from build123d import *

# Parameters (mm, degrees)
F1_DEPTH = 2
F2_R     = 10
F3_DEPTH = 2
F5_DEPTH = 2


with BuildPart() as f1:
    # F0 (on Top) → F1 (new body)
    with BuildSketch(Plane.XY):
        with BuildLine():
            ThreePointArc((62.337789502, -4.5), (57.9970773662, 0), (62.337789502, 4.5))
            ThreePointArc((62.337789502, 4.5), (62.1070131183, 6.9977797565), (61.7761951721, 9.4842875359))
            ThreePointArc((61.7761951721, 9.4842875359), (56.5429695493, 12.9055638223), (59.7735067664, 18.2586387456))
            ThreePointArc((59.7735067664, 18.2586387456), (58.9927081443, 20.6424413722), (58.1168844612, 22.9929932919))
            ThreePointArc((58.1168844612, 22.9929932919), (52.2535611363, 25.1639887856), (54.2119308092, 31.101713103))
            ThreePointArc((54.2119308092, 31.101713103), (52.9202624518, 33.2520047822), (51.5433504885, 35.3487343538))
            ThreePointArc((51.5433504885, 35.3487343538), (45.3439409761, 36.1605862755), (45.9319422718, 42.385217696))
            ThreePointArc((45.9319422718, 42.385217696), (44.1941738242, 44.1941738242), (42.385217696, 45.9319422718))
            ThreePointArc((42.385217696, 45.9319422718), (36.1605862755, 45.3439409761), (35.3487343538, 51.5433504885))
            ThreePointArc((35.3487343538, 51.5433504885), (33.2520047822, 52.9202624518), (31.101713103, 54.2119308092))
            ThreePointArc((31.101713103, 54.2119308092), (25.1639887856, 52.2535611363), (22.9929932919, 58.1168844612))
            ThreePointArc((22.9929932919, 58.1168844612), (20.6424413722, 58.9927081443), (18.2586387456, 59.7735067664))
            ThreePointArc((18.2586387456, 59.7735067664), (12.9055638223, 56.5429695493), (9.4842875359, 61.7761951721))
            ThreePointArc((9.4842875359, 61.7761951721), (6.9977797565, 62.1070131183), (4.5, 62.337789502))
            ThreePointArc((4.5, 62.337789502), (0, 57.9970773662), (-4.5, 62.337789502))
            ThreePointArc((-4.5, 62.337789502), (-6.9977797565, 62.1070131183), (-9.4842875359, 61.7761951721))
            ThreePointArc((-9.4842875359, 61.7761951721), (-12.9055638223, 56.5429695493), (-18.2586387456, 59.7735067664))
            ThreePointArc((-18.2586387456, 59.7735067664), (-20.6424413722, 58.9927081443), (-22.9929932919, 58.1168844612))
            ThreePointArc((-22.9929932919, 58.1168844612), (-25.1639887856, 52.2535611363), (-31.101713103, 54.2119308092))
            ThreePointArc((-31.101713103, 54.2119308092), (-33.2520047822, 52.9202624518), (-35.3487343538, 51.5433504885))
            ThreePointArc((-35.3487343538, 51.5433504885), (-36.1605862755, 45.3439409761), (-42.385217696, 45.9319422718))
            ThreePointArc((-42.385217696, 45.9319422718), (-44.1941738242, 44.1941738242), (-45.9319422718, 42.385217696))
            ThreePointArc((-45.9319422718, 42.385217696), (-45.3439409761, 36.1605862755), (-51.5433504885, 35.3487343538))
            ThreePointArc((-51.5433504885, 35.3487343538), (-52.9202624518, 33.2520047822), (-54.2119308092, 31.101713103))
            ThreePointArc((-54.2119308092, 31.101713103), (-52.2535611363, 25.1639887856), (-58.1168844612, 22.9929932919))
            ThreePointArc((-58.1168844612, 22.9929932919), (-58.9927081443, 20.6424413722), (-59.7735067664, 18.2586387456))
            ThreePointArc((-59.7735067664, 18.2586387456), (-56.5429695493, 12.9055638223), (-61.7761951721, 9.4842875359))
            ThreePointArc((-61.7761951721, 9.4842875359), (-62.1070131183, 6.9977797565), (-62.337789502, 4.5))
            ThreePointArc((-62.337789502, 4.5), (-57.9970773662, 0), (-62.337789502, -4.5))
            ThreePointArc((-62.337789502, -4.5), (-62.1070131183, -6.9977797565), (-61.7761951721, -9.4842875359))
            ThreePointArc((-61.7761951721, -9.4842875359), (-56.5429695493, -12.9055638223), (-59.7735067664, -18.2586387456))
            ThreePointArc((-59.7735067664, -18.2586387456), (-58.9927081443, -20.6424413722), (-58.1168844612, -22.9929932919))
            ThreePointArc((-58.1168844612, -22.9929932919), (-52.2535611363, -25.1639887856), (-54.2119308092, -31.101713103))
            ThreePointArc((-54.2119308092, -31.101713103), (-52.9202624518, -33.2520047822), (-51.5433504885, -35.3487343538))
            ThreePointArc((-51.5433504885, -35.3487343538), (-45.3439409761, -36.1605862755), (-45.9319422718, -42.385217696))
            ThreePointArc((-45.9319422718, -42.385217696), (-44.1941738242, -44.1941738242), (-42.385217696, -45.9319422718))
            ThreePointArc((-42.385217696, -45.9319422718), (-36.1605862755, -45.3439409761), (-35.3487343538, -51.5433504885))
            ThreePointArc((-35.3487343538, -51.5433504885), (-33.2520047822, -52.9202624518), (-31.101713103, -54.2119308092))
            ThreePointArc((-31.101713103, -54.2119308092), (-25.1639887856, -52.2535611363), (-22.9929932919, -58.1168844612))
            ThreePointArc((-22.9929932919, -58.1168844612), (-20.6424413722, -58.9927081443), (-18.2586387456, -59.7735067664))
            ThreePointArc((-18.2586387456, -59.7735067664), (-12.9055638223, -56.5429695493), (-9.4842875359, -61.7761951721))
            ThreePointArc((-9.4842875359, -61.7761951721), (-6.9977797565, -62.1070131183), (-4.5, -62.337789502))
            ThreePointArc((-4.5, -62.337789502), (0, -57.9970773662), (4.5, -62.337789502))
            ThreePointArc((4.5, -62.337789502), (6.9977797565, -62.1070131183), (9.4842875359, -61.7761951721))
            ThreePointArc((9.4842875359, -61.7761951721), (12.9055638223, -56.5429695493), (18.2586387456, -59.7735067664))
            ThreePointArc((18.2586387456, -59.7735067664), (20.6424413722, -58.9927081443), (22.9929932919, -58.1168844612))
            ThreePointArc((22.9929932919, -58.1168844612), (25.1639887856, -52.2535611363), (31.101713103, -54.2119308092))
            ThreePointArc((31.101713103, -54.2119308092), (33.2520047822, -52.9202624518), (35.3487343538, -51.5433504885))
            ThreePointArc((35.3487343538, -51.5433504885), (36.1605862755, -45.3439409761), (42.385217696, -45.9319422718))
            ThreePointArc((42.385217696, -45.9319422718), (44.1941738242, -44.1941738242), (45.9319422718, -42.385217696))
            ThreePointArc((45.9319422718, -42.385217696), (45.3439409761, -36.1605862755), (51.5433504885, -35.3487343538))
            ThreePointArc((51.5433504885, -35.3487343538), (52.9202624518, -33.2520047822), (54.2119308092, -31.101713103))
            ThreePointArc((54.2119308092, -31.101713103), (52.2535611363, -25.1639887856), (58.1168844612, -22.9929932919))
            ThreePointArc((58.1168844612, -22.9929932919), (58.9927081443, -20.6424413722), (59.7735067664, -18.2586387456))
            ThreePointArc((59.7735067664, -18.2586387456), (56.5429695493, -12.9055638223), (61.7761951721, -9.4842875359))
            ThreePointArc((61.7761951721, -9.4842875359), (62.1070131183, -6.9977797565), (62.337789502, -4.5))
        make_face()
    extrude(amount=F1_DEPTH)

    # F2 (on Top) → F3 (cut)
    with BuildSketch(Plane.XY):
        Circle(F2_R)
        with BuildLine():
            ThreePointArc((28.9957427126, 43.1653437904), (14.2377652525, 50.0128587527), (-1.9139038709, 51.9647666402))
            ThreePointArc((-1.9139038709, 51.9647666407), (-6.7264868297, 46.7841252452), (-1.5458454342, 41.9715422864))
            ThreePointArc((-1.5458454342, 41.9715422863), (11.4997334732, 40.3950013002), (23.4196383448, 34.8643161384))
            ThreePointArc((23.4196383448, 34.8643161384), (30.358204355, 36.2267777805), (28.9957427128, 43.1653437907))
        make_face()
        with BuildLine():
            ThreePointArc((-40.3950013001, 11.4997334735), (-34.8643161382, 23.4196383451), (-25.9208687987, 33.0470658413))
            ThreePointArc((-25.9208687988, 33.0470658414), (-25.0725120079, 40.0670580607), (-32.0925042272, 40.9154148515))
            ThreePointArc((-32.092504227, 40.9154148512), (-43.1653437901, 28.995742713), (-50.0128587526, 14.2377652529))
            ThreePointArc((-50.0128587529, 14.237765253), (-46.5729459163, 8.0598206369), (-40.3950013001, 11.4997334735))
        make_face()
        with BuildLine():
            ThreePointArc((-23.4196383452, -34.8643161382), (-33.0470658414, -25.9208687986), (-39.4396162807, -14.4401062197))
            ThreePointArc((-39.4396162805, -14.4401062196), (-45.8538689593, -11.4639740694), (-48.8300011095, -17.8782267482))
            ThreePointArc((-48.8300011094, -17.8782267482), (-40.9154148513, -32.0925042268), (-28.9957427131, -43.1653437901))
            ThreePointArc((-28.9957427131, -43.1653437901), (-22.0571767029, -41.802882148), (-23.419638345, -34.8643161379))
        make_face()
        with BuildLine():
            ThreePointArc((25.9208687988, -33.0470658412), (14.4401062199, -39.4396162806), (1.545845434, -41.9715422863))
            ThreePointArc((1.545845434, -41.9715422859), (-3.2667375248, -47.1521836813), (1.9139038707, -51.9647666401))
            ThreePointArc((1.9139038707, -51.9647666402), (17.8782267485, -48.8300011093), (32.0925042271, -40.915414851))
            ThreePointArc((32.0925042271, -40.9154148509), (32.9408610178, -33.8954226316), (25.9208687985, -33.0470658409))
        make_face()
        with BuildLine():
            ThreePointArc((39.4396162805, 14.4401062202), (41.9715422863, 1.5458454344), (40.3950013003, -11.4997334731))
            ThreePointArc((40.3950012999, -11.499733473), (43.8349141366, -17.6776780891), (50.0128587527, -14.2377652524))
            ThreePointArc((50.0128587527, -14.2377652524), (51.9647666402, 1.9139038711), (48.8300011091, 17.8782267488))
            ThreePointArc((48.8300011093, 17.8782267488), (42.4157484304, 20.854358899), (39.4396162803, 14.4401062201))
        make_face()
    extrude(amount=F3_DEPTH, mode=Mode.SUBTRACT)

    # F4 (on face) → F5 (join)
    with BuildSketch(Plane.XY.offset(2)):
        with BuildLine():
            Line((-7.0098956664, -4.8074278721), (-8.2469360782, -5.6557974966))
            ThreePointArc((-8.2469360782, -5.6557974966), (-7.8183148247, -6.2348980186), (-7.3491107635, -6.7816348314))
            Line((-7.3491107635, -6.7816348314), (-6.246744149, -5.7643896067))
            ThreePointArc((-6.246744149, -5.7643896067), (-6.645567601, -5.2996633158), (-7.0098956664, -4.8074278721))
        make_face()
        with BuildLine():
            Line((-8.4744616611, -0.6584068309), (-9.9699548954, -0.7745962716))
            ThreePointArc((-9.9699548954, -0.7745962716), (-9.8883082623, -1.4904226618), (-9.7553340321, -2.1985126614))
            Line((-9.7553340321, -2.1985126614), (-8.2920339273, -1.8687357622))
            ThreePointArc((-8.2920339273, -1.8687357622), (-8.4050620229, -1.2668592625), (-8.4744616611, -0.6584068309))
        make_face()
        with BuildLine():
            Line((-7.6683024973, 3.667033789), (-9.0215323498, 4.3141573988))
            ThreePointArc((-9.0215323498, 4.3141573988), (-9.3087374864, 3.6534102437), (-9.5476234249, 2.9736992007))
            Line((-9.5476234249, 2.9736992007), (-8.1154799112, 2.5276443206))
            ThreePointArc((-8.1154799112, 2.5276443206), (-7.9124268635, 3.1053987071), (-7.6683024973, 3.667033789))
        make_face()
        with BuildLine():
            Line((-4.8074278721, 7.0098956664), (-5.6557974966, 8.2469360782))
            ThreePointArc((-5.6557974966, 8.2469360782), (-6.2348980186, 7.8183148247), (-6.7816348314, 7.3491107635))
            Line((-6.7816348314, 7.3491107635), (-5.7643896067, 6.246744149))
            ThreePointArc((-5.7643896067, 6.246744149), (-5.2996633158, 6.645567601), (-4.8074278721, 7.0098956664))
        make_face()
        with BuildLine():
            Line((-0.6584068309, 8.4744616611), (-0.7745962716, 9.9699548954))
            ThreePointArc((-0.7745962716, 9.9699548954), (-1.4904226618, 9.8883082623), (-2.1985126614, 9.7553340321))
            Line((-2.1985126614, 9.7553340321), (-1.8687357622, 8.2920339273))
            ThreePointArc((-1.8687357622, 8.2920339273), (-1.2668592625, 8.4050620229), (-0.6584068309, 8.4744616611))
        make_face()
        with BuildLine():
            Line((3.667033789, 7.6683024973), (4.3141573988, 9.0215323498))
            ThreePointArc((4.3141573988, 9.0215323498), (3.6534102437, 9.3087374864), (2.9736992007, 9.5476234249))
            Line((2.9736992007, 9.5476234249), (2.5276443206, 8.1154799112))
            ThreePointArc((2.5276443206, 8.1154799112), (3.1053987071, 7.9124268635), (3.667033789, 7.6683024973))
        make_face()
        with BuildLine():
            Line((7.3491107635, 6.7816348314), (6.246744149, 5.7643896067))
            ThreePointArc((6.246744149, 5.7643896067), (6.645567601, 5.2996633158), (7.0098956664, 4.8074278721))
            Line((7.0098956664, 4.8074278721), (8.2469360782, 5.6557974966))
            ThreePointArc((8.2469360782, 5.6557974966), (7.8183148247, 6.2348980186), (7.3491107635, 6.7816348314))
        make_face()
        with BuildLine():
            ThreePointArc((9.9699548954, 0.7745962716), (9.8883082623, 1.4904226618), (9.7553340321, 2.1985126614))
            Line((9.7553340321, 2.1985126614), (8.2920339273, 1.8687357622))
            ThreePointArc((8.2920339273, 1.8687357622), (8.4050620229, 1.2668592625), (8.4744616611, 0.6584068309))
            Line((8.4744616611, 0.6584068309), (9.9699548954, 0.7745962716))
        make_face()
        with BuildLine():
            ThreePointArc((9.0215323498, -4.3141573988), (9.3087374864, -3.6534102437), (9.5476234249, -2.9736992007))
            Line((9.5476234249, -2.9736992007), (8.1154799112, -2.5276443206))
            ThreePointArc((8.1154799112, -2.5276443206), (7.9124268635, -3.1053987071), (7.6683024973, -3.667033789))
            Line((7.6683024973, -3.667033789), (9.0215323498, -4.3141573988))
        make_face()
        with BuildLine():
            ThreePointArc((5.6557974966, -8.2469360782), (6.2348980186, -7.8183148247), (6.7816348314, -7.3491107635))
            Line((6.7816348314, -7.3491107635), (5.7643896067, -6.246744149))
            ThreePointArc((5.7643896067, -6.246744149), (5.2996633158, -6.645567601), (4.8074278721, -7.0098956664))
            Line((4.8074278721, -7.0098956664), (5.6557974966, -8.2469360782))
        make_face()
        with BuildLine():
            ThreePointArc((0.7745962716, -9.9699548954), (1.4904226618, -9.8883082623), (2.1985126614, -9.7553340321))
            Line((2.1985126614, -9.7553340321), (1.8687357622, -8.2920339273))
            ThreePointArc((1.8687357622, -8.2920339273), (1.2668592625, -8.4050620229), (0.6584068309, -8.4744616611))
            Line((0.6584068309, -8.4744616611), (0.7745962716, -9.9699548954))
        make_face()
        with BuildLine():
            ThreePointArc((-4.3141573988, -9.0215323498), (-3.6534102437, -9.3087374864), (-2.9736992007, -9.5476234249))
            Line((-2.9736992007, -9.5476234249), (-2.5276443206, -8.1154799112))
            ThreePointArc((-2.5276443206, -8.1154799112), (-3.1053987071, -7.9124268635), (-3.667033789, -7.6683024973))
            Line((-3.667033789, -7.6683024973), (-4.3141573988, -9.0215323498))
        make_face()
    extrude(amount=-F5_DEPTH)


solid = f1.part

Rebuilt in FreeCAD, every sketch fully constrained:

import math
import FreeCAD as App
import Part
import Sketcher

V = App.Vector
Q = App.Units.Quantity

doc = App.newDocument("Part")
body = doc.addObject("PartDesign::Body", "Body")

# Sketch on XY plane
sketch1 = doc.addObject("Sketcher::SketchObject", "Sketch")
body.addObject(sketch1)
sketch1.AttachmentSupport = (doc.XY_Plane, [""])
sketch1.MapMode = "FlatFace"
sketch1.addGeometry([
    Part.ArcOfCircle(Part.Circle(V(62.5, 0, 0), V(0, 0, 1), 4.5), math.radians(92), math.radians(268)),  # 0
    Part.ArcOfCircle(Part.Circle(V(0, 0, 0), V(0, 0, 1), 62.5), math.radians(4.13), math.radians(8.73)),  # 1
    Part.ArcOfCircle(Part.Circle(V(60.9, 13.9, 0), V(0, 0, 1), 4.5), math.radians(105), math.radians(281)),  # 2
    Part.ArcOfCircle(Part.Circle(V(0, 0, 0), V(0, 0, 1), 62.5), math.radians(16.99), math.radians(21.59)),  # 3
    Part.ArcOfCircle(Part.Circle(V(56.3, 27.1, 0), V(0, 0, 1), 4.5), math.radians(118), math.radians(294)),  # 4
    Part.ArcOfCircle(Part.Circle(V(0, 0, 0), V(0, 0, 1), 62.5), math.radians(29.84), math.radians(34.44)),  # 5
    Part.ArcOfCircle(Part.Circle(V(48.9, 39, 0), V(0, 0, 1), 4.5), math.radians(131), math.radians(307)),  # 6
    Part.ArcOfCircle(Part.Circle(V(0, 0, 0), V(0, 0, 1), 62.5), math.radians(42.7), math.radians(47.3)),  # 7
    Part.ArcOfCircle(Part.Circle(V(39, 48.9, 0), V(0, 0, 1), 4.5), math.radians(143), math.radians(319)),  # 8
    Part.ArcOfCircle(Part.Circle(V(0, 0, 0), V(0, 0, 1), 62.5), math.radians(55.56), math.radians(60.16)),  # 9
    Part.ArcOfCircle(Part.Circle(V(27.1, 56.3, 0), V(0, 0, 1), 4.5), math.radians(156), math.radians(332)),  # 10
    Part.ArcOfCircle(Part.Circle(V(0, 0, 0), V(0, 0, 1), 62.5), math.radians(68.41), math.radians(73.01)),  # 11
    Part.ArcOfCircle(Part.Circle(V(13.9, 60.9, 0), V(0, 0, 1), 4.5), math.radians(169), math.radians(345)),  # 12
    Part.ArcOfCircle(Part.Circle(V(0, 0, 0), V(0, 0, 1), 62.5), math.radians(81.27), math.radians(85.87)),  # 13
    Part.ArcOfCircle(Part.Circle(V(0, 62.5, 0), V(0, 0, 1), 4.5), math.radians(-178), math.radians(-2)),  # 14
    Part.ArcOfCircle(Part.Circle(V(0, 0, 0), V(0, 0, 1), 62.5), math.radians(94.13), math.radians(98.73)),  # 15
    Part.ArcOfCircle(Part.Circle(V(-13.9, 60.9, 0), V(0, 0, 1), 4.5), math.radians(-165), math.radians(11)),  # 16
    Part.ArcOfCircle(Part.Circle(V(0, 0, 0), V(0, 0, 1), 62.5), math.radians(106.99), math.radians(111.59)),  # 17
    Part.ArcOfCircle(Part.Circle(V(-27.1, 56.3, 0), V(0, 0, 1), 4.5), math.radians(-152), math.radians(24)),  # 18
    Part.ArcOfCircle(Part.Circle(V(0, 0, 0), V(0, 0, 1), 62.5), math.radians(119.84), math.radians(124.44)),  # 19
    Part.ArcOfCircle(Part.Circle(V(-39, 48.9, 0), V(0, 0, 1), 4.5), math.radians(-139), math.radians(37)),  # 20
    Part.ArcOfCircle(Part.Circle(V(0, 0, 0), V(0, 0, 1), 62.5), math.radians(132.7), math.radians(137.3)),  # 21
    Part.ArcOfCircle(Part.Circle(V(-48.9, 39, 0), V(0, 0, 1), 4.5), math.radians(-127), math.radians(49)),  # 22
    Part.ArcOfCircle(Part.Circle(V(0, 0, 0), V(0, 0, 1), 62.5), math.radians(145.56), math.radians(150.16)),  # 23
    Part.ArcOfCircle(Part.Circle(V(-56.3, 27.1, 0), V(0, 0, 1), 4.5), math.radians(-114), math.radians(62)),  # 24
    Part.ArcOfCircle(Part.Circle(V(0, 0, 0), V(0, 0, 1), 62.5), math.radians(158.41), math.radians(163.01)),  # 25
    Part.ArcOfCircle(Part.Circle(V(-60.9, 13.9, 0), V(0, 0, 1), 4.5), math.radians(-101), math.radians(75)),  # 26
    Part.ArcOfCircle(Part.Circle(V(0, 0, 0), V(0, 0, 1), 62.5), math.radians(171.27), math.radians(175.87)),  # 27
    Part.ArcOfCircle(Part.Circle(V(-62.5, 0, 0), V(0, 0, 1), 4.5), math.radians(-88), math.radians(88)),  # 28
    Part.ArcOfCircle(Part.Circle(V(0, 0, 0), V(0, 0, 1), 62.5), math.radians(-175.87), math.radians(-171.27)),  # 29
    Part.ArcOfCircle(Part.Circle(V(-60.9, -13.9, 0), V(0, 0, 1), 4.5), math.radians(-75), math.radians(101)),  # 30
    Part.ArcOfCircle(Part.Circle(V(0, 0, 0), V(0, 0, 1), 62.5), math.radians(-163.01), math.radians(-158.41)),  # 31
    Part.ArcOfCircle(Part.Circle(V(-56.3, -27.1, 0), V(0, 0, 1), 4.5), math.radians(-62), math.radians(114)),  # 32
    Part.ArcOfCircle(Part.Circle(V(0, 0, 0), V(0, 0, 1), 62.5), math.radians(-150.16), math.radians(-145.56)),  # 33
    Part.ArcOfCircle(Part.Circle(V(-48.9, -39, 0), V(0, 0, 1), 4.5), math.radians(-49), math.radians(127)),  # 34
    Part.ArcOfCircle(Part.Circle(V(0, 0, 0), V(0, 0, 1), 62.5), math.radians(-137.3), math.radians(-132.7)),  # 35
    Part.ArcOfCircle(Part.Circle(V(-39, -48.9, 0), V(0, 0, 1), 4.5), math.radians(-37), math.radians(139)),  # 36
    Part.ArcOfCircle(Part.Circle(V(0, 0, 0), V(0, 0, 1), 62.5), math.radians(-124.44), math.radians(-119.84)),  # 37
    Part.ArcOfCircle(Part.Circle(V(-27.1, -56.3, 0), V(0, 0, 1), 4.5), math.radians(-24), math.radians(152)),  # 38
    Part.ArcOfCircle(Part.Circle(V(0, 0, 0), V(0, 0, 1), 62.5), math.radians(-111.59), math.radians(-106.99)),  # 39
    Part.ArcOfCircle(Part.Circle(V(-13.9, -60.9, 0), V(0, 0, 1), 4.5), math.radians(-11), math.radians(165)),  # 40
    Part.ArcOfCircle(Part.Circle(V(0, 0, 0), V(0, 0, 1), 62.5), math.radians(-98.73), math.radians(-94.13)),  # 41
    Part.ArcOfCircle(Part.Circle(V(0, -62.5, 0), V(0, 0, 1), 4.5), math.radians(2), math.radians(178)),  # 42
    Part.ArcOfCircle(Part.Circle(V(0, 0, 0), V(0, 0, 1), 62.5), math.radians(-85.87), math.radians(-81.27)),  # 43
    Part.ArcOfCircle(Part.Circle(V(13.9, -60.9, 0), V(0, 0, 1), 4.5), math.radians(15), math.radians(191)),  # 44
    Part.ArcOfCircle(Part.Circle(V(0, 0, 0), V(0, 0, 1), 62.5), math.radians(-73.01), math.radians(-68.41)),  # 45
    Part.ArcOfCircle(Part.Circle(V(27.1, -56.3, 0), V(0, 0, 1), 4.5), math.radians(28), math.radians(204)),  # 46
    Part.ArcOfCircle(Part.Circle(V(0, 0, 0), V(0, 0, 1), 62.5), math.radians(-60.16), math.radians(-55.56)),  # 47
    Part.ArcOfCircle(Part.Circle(V(39, -48.9, 0), V(0, 0, 1), 4.5), math.radians(41), math.radians(217)),  # 48
    Part.ArcOfCircle(Part.Circle(V(0, 0, 0), V(0, 0, 1), 62.5), math.radians(-47.3), math.radians(-42.7)),  # 49
    Part.ArcOfCircle(Part.Circle(V(48.9, -39, 0), V(0, 0, 1), 4.5), math.radians(53), math.radians(229)),  # 50
    Part.ArcOfCircle(Part.Circle(V(0, 0, 0), V(0, 0, 1), 62.5), math.radians(-34.44), math.radians(-29.84)),  # 51
    Part.ArcOfCircle(Part.Circle(V(56.3, -27.1, 0), V(0, 0, 1), 4.5), math.radians(66), math.radians(242)),  # 52
    Part.ArcOfCircle(Part.Circle(V(0, 0, 0), V(0, 0, 1), 62.5), math.radians(-21.59), math.radians(-16.99)),  # 53
    Part.ArcOfCircle(Part.Circle(V(60.9, -13.9, 0), V(0, 0, 1), 4.5), math.radians(79), math.radians(255)),  # 54
    Part.ArcOfCircle(Part.Circle(V(0, 0, 0), V(0, 0, 1), 62.5), math.radians(-8.73), math.radians(-4.13)),  # 55
], False)
sketch1.addConstraint([
    Sketcher.Constraint("Coincident", 0, 1, 1, 1),
    Sketcher.Constraint("Coincident", 1, 2, 2, 2),
    Sketcher.Constraint("Coincident", 2, 1, 3, 1),
    Sketcher.Constraint("Coincident", 3, 2, 4, 2),
    Sketcher.Constraint("Coincident", 4, 1, 5, 1),
    Sketcher.Constraint("Coincident", 5, 2, 6, 2),
    Sketcher.Constraint("Coincident", 6, 1, 7, 1),
    Sketcher.Constraint("Coincident", 7, 2, 8, 2),
    Sketcher.Constraint("Coincident", 8, 1, 9, 1),
    Sketcher.Constraint("Coincident", 9, 2, 10, 2),
    Sketcher.Constraint("Coincident", 10, 1, 11, 1),
    Sketcher.Constraint("Coincident", 11, 2, 12, 2),
    Sketcher.Constraint("Coincident", 12, 1, 13, 1),
    Sketcher.Constraint("Coincident", 13, 2, 14, 2),
    Sketcher.Constraint("Coincident", 14, 1, 15, 1),
    Sketcher.Constraint("Coincident", 15, 2, 16, 2),
    Sketcher.Constraint("Coincident", 16, 1, 17, 1),
    Sketcher.Constraint("Coincident", 17, 2, 18, 2),
    Sketcher.Constraint("Coincident", 18, 1, 19, 1),
    Sketcher.Constraint("Coincident", 19, 2, 20, 2),
    Sketcher.Constraint("Coincident", 20, 1, 21, 1),
    Sketcher.Constraint("Coincident", 21, 2, 22, 2),
    Sketcher.Constraint("Coincident", 22, 1, 23, 1),
    Sketcher.Constraint("Coincident", 23, 2, 24, 2),
    Sketcher.Constraint("Coincident", 24, 1, 25, 1),
    Sketcher.Constraint("Coincident", 25, 2, 26, 2),
    Sketcher.Constraint("Coincident", 26, 1, 27, 1),
    Sketcher.Constraint("Coincident", 27, 2, 28, 2),
    Sketcher.Constraint("Coincident", 28, 1, 29, 1),
    Sketcher.Constraint("Coincident", 29, 2, 30, 2),
    Sketcher.Constraint("Coincident", 30, 1, 31, 1),
    Sketcher.Constraint("Coincident", 31, 2, 32, 2),
    Sketcher.Constraint("Coincident", 32, 1, 33, 1),
    Sketcher.Constraint("Coincident", 33, 2, 34, 2),
    Sketcher.Constraint("Coincident", 34, 1, 35, 1),
    Sketcher.Constraint("Coincident", 35, 2, 36, 2),
    Sketcher.Constraint("Coincident", 36, 1, 37, 1),
    Sketcher.Constraint("Coincident", 37, 2, 38, 2),
    Sketcher.Constraint("Coincident", 38, 1, 39, 1),
    Sketcher.Constraint("Coincident", 39, 2, 40, 2),
    Sketcher.Constraint("Coincident", 40, 1, 41, 1),
    Sketcher.Constraint("Coincident", 41, 2, 42, 2),
    Sketcher.Constraint("Coincident", 42, 1, 43, 1),
    Sketcher.Constraint("Coincident", 43, 2, 44, 2),
    Sketcher.Constraint("Coincident", 44, 1, 45, 1),
    Sketcher.Constraint("Coincident", 45, 2, 46, 2),
    Sketcher.Constraint("Coincident", 46, 1, 47, 1),
    Sketcher.Constraint("Coincident", 47, 2, 48, 2),
    Sketcher.Constraint("Coincident", 48, 1, 49, 1),
    Sketcher.Constraint("Coincident", 49, 2, 50, 2),
    Sketcher.Constraint("Coincident", 50, 1, 51, 1),
    Sketcher.Constraint("Coincident", 51, 2, 52, 2),
    Sketcher.Constraint("Coincident", 52, 1, 53, 1),
    Sketcher.Constraint("Coincident", 53, 2, 54, 2),
    Sketcher.Constraint("Coincident", 54, 1, 55, 1),
    Sketcher.Constraint("Coincident", 55, 2, 0, 2),
    Sketcher.Constraint("Coincident", 1, 3, -1, 1),
    Sketcher.Constraint("Coincident", 3, 3, -1, 1),
    Sketcher.Constraint("Coincident", 5, 3, -1, 1),
    Sketcher.Constraint("Coincident", 7, 3, -1, 1),
    Sketcher.Constraint("Coincident", 9, 3, -1, 1),
    Sketcher.Constraint("Coincident", 11, 3, -1, 1),
    Sketcher.Constraint("Coincident", 13, 3, -1, 1),
    Sketcher.Constraint("Coincident", 15, 3, -1, 1),
    Sketcher.Constraint("Coincident", 17, 3, -1, 1),
    Sketcher.Constraint("Coincident", 19, 3, -1, 1),
    Sketcher.Constraint("Coincident", 21, 3, -1, 1),
    Sketcher.Constraint("Coincident", 23, 3, -1, 1),
    Sketcher.Constraint("Coincident", 25, 3, -1, 1),
    Sketcher.Constraint("Coincident", 27, 3, -1, 1),
    Sketcher.Constraint("Coincident", 29, 3, -1, 1),
    Sketcher.Constraint("Coincident", 31, 3, -1, 1),
    Sketcher.Constraint("Coincident", 33, 3, -1, 1),
    Sketcher.Constraint("Coincident", 35, 3, -1, 1),
    Sketcher.Constraint("Coincident", 37, 3, -1, 1),
    Sketcher.Constraint("Coincident", 39, 3, -1, 1),
    Sketcher.Constraint("Coincident", 41, 3, -1, 1),
    Sketcher.Constraint("Coincident", 43, 3, -1, 1),
    Sketcher.Constraint("Coincident", 45, 3, -1, 1),
    Sketcher.Constraint("Coincident", 47, 3, -1, 1),
    Sketcher.Constraint("Coincident", 49, 3, -1, 1),
    Sketcher.Constraint("Coincident", 51, 3, -1, 1),
    Sketcher.Constraint("Coincident", 53, 3, -1, 1),
    Sketcher.Constraint("Coincident", 55, 3, -1, 1),
    Sketcher.Constraint("Equal", 0, 2),
    Sketcher.Constraint("Equal", 1, 3),
    Sketcher.Constraint("Equal", 2, 4),
    Sketcher.Constraint("Equal", 3, 5),
    Sketcher.Constraint("Equal", 4, 6),
    Sketcher.Constraint("Equal", 5, 7),
    Sketcher.Constraint("Equal", 6, 8),
    Sketcher.Constraint("Equal", 7, 9),
    Sketcher.Constraint("Equal", 8, 10),
    Sketcher.Constraint("Equal", 9, 11),
    Sketcher.Constraint("Equal", 10, 12),
    Sketcher.Constraint("Equal", 11, 13),
    Sketcher.Constraint("Equal", 12, 14),
    Sketcher.Constraint("Equal", 13, 15),
    Sketcher.Constraint("Equal", 14, 16),
    Sketcher.Constraint("Equal", 15, 17),
    Sketcher.Constraint("Equal", 16, 18),
    Sketcher.Constraint("Equal", 17, 19),
    Sketcher.Constraint("Equal", 18, 20),
    Sketcher.Constraint("Equal", 19, 21),
    Sketcher.Constraint("Equal", 20, 22),
    Sketcher.Constraint("Equal", 21, 23),
    Sketcher.Constraint("Equal", 22, 24),
    Sketcher.Constraint("Equal", 23, 25),
    Sketcher.Constraint("Equal", 24, 26),
    Sketcher.Constraint("Equal", 25, 27),
    Sketcher.Constraint("Equal", 26, 28),
    Sketcher.Constraint("Equal", 27, 29),
    Sketcher.Constraint("Equal", 28, 30),
    Sketcher.Constraint("Equal", 29, 31),
    Sketcher.Constraint("Equal", 30, 32),
    Sketcher.Constraint("Equal", 31, 33),
    Sketcher.Constraint("Equal", 32, 34),
    Sketcher.Constraint("Equal", 33, 35),
    Sketcher.Constraint("Equal", 34, 36),
    Sketcher.Constraint("Equal", 35, 37),
    Sketcher.Constraint("Equal", 36, 38),
    Sketcher.Constraint("Equal", 37, 39),
    Sketcher.Constraint("Equal", 38, 40),
    Sketcher.Constraint("Equal", 39, 41),
    Sketcher.Constraint("Equal", 40, 42),
    Sketcher.Constraint("Equal", 41, 43),
    Sketcher.Constraint("Equal", 42, 44),
    Sketcher.Constraint("Equal", 43, 45),
    Sketcher.Constraint("Equal", 44, 46),
    Sketcher.Constraint("Equal", 45, 47),
    Sketcher.Constraint("Equal", 46, 48),
    Sketcher.Constraint("Equal", 47, 49),
    Sketcher.Constraint("Equal", 48, 50),
    Sketcher.Constraint("Equal", 49, 51),
    Sketcher.Constraint("Equal", 50, 52),
    Sketcher.Constraint("Equal", 51, 53),
    Sketcher.Constraint("Equal", 52, 54),
    Sketcher.Constraint("Equal", 53, 55),
    Sketcher.Constraint("Symmetric", 0, 3, 28, 3, -1, 1),
    Sketcher.Constraint("Symmetric", 2, 3, 30, 3, -1, 1),
    Sketcher.Constraint("Symmetric", 4, 3, 32, 3, -1, 1),
    Sketcher.Constraint("Symmetric", 6, 3, 34, 3, -1, 1),
    Sketcher.Constraint("Symmetric", 8, 3, 36, 3, -1, 1),
    Sketcher.Constraint("Symmetric", 10, 3, 38, 3, -1, 1),
    Sketcher.Constraint("Symmetric", 12, 3, 40, 3, -1, 1),
    Sketcher.Constraint("Symmetric", 14, 3, 42, 3, -1, 1),
    Sketcher.Constraint("Symmetric", 16, 3, 44, 3, -1, 1),
    Sketcher.Constraint("Symmetric", 18, 3, 46, 3, -1, 1),
    Sketcher.Constraint("Symmetric", 20, 3, 48, 3, -1, 1),
    Sketcher.Constraint("Symmetric", 22, 3, 50, 3, -1, 1),
    Sketcher.Constraint("Symmetric", 24, 3, 52, 3, -1, 1),
    Sketcher.Constraint("Symmetric", 26, 3, 54, 3, -1, 1),
    Sketcher.Constraint("Symmetric", 12, 3, 16, 3, -2),
    Sketcher.Constraint("Symmetric", 10, 3, 18, 3, -2),
    Sketcher.Constraint("Symmetric", 8, 3, 20, 3, -2),
    Sketcher.Constraint("Symmetric", 6, 3, 22, 3, -2),
    Sketcher.Constraint("Symmetric", 4, 3, 24, 3, -2),
    Sketcher.Constraint("Symmetric", 2, 3, 26, 3, -2),
    Sketcher.Constraint("PointOnObject", 0, 3, -1),
    Sketcher.Constraint("PointOnObject", 14, 3, -2),
    Sketcher.Constraint("Radius", 1, Q("62.5 mm")),
    Sketcher.Constraint("DistanceX", -1, 1, 0, 3, Q("62.5 mm")),
    Sketcher.Constraint("DistanceY", -1, 1, 14, 3, Q("62.5 mm")),
    Sketcher.Constraint("DistanceY", -1, 1, 0, 1, Q("4.5 mm")),
    Sketcher.Constraint("DistanceY", -1, 1, 2, 3, Q("13.907558 mm")),
    Sketcher.Constraint("DistanceX", -1, 1, 12, 3, Q("13.907558 mm")),
    Sketcher.Constraint("DistanceY", -1, 1, 2, 1, Q("18.258639 mm")),
    Sketcher.Constraint("DistanceX", -1, 1, 4, 1, Q("54.211931 mm")),
    Sketcher.Constraint("DistanceX", -1, 1, 5, 2, Q("51.54335 mm")),
    Sketcher.Constraint("DistanceY", -1, 1, 8, 1, Q("51.54335 mm")),
    Sketcher.Constraint("DistanceY", -1, 1, 9, 2, Q("54.211931 mm")),
    Sketcher.Constraint("DistanceX", 16, 1, -1, 1, Q("18.258639 mm")),
    Sketcher.Constraint("DistanceX", -1, 1, 4, 3, Q("56.310554 mm")),
    Sketcher.Constraint("DistanceX", -1, 1, 6, 3, Q("48.864468 mm")),
    Sketcher.Constraint("DistanceX", -1, 1, 8, 3, Q("38.968113 mm")),
    Sketcher.Constraint("DistanceX", -1, 1, 10, 3, Q("27.117734 mm")),
])
pad1 = doc.addObject("PartDesign::Pad", "Pad")
body.addObject(pad1)
pad1.Profile = sketch1
pad1.Length = 2

# Sketch on XY plane
sketch2 = doc.addObject("Sketcher::SketchObject", "Sketch001")
body.addObject(sketch2)
sketch2.AttachmentSupport = (doc.XY_Plane, [""])
sketch2.MapMode = "FlatFace"
sketch2.addGeometry([
    Part.Circle(V(0, 0, 0), V(0, 0, 1), 10),  # 0
    Part.ArcOfCircle(Part.Circle(V(0, 0, 0), V(0, 0, 1), 52), math.radians(56.109296), math.radians(92.109296)),  # 1
    Part.ArcOfCircle(Part.Circle(V(-1.729875, 46.968154, 0), V(0, 0, 1), 5), math.radians(92.109296), math.radians(272.109296)),  # 2
    Part.ArcOfCircle(Part.Circle(V(0, 0, 0), V(0, 0, 1), 42), math.radians(56.109296), math.radians(92.109296)),  # 3
    Part.ArcOfCircle(Part.Circle(V(26.207691, 39.01483, 0), V(0, 0, 1), 5), math.radians(-123.890704), math.radians(56.109296)),  # 4
    Part.ArcOfCircle(Part.Circle(V(0, 0, 0), V(0, 0, 1), 42), math.radians(128.109296), math.radians(164.109296)),  # 5
    Part.ArcOfCircle(Part.Circle(V(-29.006687, 36.98124, 0), V(0, 0, 1), 5), math.radians(-51.890704), math.radians(128.109296)),  # 6
    Part.ArcOfCircle(Part.Circle(V(0, 0, 0), V(0, 0, 1), 52), math.radians(128.109296), math.radians(164.109296)),  # 7
    Part.ArcOfCircle(Part.Circle(V(-45.20393, 12.868749, 0), V(0, 0, 1), 5), math.radians(164.109296), math.radians(344.109296)),  # 8
    Part.ArcOfCircle(Part.Circle(V(0, 0, 0), V(0, 0, 1), 42), math.radians(-159.890704), math.radians(-123.890704)),  # 9
    Part.ArcOfCircle(Part.Circle(V(-44.134809, -16.159166, 0), V(0, 0, 1), 5), math.radians(20.109296), math.radians(200.109296)),  # 10
    Part.ArcOfCircle(Part.Circle(V(0, 0, 0), V(0, 0, 1), 52), math.radians(-159.890704), math.radians(-123.890704)),  # 11
    Part.ArcOfCircle(Part.Circle(V(-26.207691, -39.01483, 0), V(0, 0, 1), 5), math.radians(-123.890704), math.radians(56.109296)),  # 12
    Part.ArcOfCircle(Part.Circle(V(0, 0, 0), V(0, 0, 1), 42), math.radians(-87.890704), math.radians(-51.890704)),  # 13
    Part.ArcOfCircle(Part.Circle(V(1.729875, -46.968154, 0), V(0, 0, 1), 5), math.radians(92.109296), math.radians(272.109296)),  # 14
    Part.ArcOfCircle(Part.Circle(V(0, 0, 0), V(0, 0, 1), 52), math.radians(-87.890704), math.radians(-51.890704)),  # 15
    Part.ArcOfCircle(Part.Circle(V(29.006687, -36.98124, 0), V(0, 0, 1), 5), math.radians(-51.890704), math.radians(128.109296)),  # 16
    Part.ArcOfCircle(Part.Circle(V(0, 0, 0), V(0, 0, 1), 42), math.radians(-15.890704), math.radians(20.109296)),  # 17
    Part.ArcOfCircle(Part.Circle(V(45.20393, -12.868749, 0), V(0, 0, 1), 5), math.radians(164.109296), math.radians(344.109296)),  # 18
    Part.ArcOfCircle(Part.Circle(V(0, 0, 0), V(0, 0, 1), 52), math.radians(-15.890704), math.radians(20.109296)),  # 19
    Part.ArcOfCircle(Part.Circle(V(44.134809, 16.159166, 0), V(0, 0, 1), 5), math.radians(20.109296), math.radians(200.109296)),  # 20
], False)
sketch2.addConstraint([
    Sketcher.Constraint("Coincident", 1, 2, 2, 1),
    Sketcher.Constraint("Coincident", 2, 2, 3, 2),
    Sketcher.Constraint("Coincident", 3, 1, 4, 1),
    Sketcher.Constraint("Coincident", 4, 2, 1, 1),
    Sketcher.Constraint("Coincident", 5, 1, 6, 1),
    Sketcher.Constraint("Coincident", 6, 2, 7, 1),
    Sketcher.Constraint("Coincident", 7, 2, 8, 1),
    Sketcher.Constraint("Coincident", 8, 2, 5, 2),
    Sketcher.Constraint("Coincident", 9, 1, 10, 1),
    Sketcher.Constraint("Coincident", 10, 2, 11, 1),
    Sketcher.Constraint("Coincident", 11, 2, 12, 1),
    Sketcher.Constraint("Coincident", 12, 2, 9, 2),
    Sketcher.Constraint("Coincident", 13, 1, 14, 1),
    Sketcher.Constraint("Coincident", 14, 2, 15, 1),
    Sketcher.Constraint("Coincident", 15, 2, 16, 1),
    Sketcher.Constraint("Coincident", 16, 2, 13, 2),
    Sketcher.Constraint("Coincident", 17, 1, 18, 1),
    Sketcher.Constraint("Coincident", 18, 2, 19, 1),
    Sketcher.Constraint("Coincident", 19, 2, 20, 1),
    Sketcher.Constraint("Coincident", 20, 2, 17, 2),
    Sketcher.Constraint("Coincident", 0, 3, -1, 1),
    Sketcher.Constraint("Coincident", 1, 3, -1, 1),
    Sketcher.Constraint("Coincident", 3, 3, -1, 1),
    Sketcher.Constraint("Coincident", 5, 3, -1, 1),
    Sketcher.Constraint("Coincident", 7, 3, -1, 1),
    Sketcher.Constraint("Coincident", 9, 3, -1, 1),
    Sketcher.Constraint("Coincident", 11, 3, -1, 1),
    Sketcher.Constraint("Coincident", 13, 3, -1, 1),
    Sketcher.Constraint("Coincident", 15, 3, -1, 1),
    Sketcher.Constraint("Coincident", 17, 3, -1, 1),
    Sketcher.Constraint("Coincident", 19, 3, -1, 1),
    Sketcher.Constraint("Diameter", 0, Q("20 mm")),
    Sketcher.Constraint("Radius", 1, Q("52 mm")),
    Sketcher.Constraint("Radius", 2, Q("5 mm")),
    Sketcher.Constraint("Radius", 5, Q("42 mm")),
    Sketcher.Constraint("Radius", 6, Q("5 mm")),
    Sketcher.Constraint("Radius", 9, Q("42 mm")),
    Sketcher.Constraint("Radius", 10, Q("5 mm")),
    Sketcher.Constraint("Radius", 13, Q("42 mm")),
    Sketcher.Constraint("Radius", 14, Q("5 mm")),
    Sketcher.Constraint("Radius", 17, Q("42 mm")),
    Sketcher.Constraint("Radius", 18, Q("5 mm")),
    Sketcher.Constraint("DistanceX", 10, 2, -1, 1, Q("48.830001 mm")),
    Sketcher.Constraint("DistanceX", -1, 1, 19, 2, Q("48.830001 mm")),
    Sketcher.Constraint("DistanceX", 8, 2, -1, 1, Q("40.395001 mm")),
    Sketcher.Constraint("DistanceX", -1, 1, 17, 1, Q("40.395001 mm")),
    Sketcher.Constraint("DistanceY", 6, 3, 2, 2, Q("4.990302 mm")),
    Sketcher.Constraint("DistanceY", 2, 2, 4, 2, Q("1.193802 mm")),
    Sketcher.Constraint("DistanceY", 5, 1, 1, 2, Q("18.917701 mm")),
    Sketcher.Constraint("DistanceY", 7, 2, 5, 1, Q("18.809301 mm")),
    Sketcher.Constraint("DistanceY", 10, 3, 8, 2, Q("27.6589 mm")),
    Sketcher.Constraint("DistanceY", 13, 1, 16, 3, Q("4.990302 mm")),
    Sketcher.Constraint("DistanceY", 11, 2, 13, 1, Q("1.193802 mm")),
    Sketcher.Constraint("DistanceX", 14, 2, 15, 2, Q("30.1786 mm")),
    Sketcher.Constraint("DistanceY", 17, 1, 20, 3, Q("27.6589 mm")),
    Sketcher.Constraint("DistanceY", 16, 2, 18, 2, Q("18.809301 mm")),
    Sketcher.Constraint("DistanceX", -1, 1, 4, 3, Q("26.207691 mm")),
    Sketcher.Constraint("DistanceY", -1, 1, 6, 3, Q("36.98124 mm")),
    Sketcher.Constraint("DistanceX", 8, 3, -1, 1, Q("45.20393 mm")),
    Sketcher.Constraint("DistanceX", 12, 3, -1, 1, Q("26.207691 mm")),
    Sketcher.Constraint("DistanceY", 16, 3, -1, 1, Q("36.98124 mm")),
    Sketcher.Constraint("DistanceX", -1, 1, 18, 3, Q("45.20393 mm")),
    Sketcher.Constraint("DistanceX", -1, 1, 3, 1, Q("23.419638 mm")),
    Sketcher.Constraint("DistanceX", 5, 1, -1, 1, Q("25.920869 mm")),
    Sketcher.Constraint("DistanceX", 12, 2, -1, 1, Q("23.419638 mm")),
    Sketcher.Constraint("DistanceX", -1, 1, 16, 2, Q("25.920869 mm")),
    Sketcher.Constraint("DistanceX", 6, 3, 2, 3, Q("27.276812 mm")),
    Sketcher.Constraint("DistanceX", 14, 3, 16, 3, Q("27.276812 mm")),
    Sketcher.Constraint("DistanceY", 5, 1, 6, 2, Q("7.868349 mm")),
    Sketcher.Constraint("DistanceY", 10, 3, 9, 1, Q("1.71906 mm")),
    Sketcher.Constraint("DistanceX", 14, 3, 14, 2, Q("0.184029 mm")),
    Sketcher.Constraint("DistanceY", 20, 2, 20, 3, Q("1.71906 mm")),
])
pocket1 = doc.addObject("PartDesign::Pocket", "Pocket")
body.addObject(pocket1)
pocket1.Profile = sketch2
pocket1.Length = 2
pocket1.Reversed = True

# Sketch on XY plane
sketch3 = doc.addObject("Sketcher::SketchObject", "Sketch002")
body.addObject(sketch3)
sketch3.AttachmentSupport = (doc.XY_Plane, [""])
sketch3.MapMode = "FlatFace"
sketch3.AttachmentOffset = App.Placement(V(0, 0, 2), App.Rotation())
sketch3.addGeometry([
    Part.LineSegment(V(-7, -4.8, 0), V(-8.2, -5.7, 0)),  # 0
    Part.ArcOfCircle(Part.Circle(V(0, 0, 0), V(0, 0, 1), 10), math.radians(-145.56), math.radians(-137.3)),  # 1
    Part.LineSegment(V(-7.3, -6.8, 0), V(-6.2, -5.8, 0)),  # 2
    Part.ArcOfCircle(Part.Circle(V(0, 0, 0), V(0, 0, 1), 8.5), math.radians(-145.56), math.radians(-137.3)),  # 3
    Part.LineSegment(V(-8.5, -0.7, 0), V(-10, -0.8, 0)),  # 4
    Part.ArcOfCircle(Part.Circle(V(0, 0, 0), V(0, 0, 1), 10), math.radians(-175.56), math.radians(-167.3)),  # 5
    Part.LineSegment(V(-9.8, -2.2, 0), V(-8.3, -1.9, 0)),  # 6
    Part.ArcOfCircle(Part.Circle(V(0, 0, 0), V(0, 0, 1), 8.5), math.radians(-175.56), math.radians(-167.3)),  # 7
    Part.LineSegment(V(-7.7, 3.7, 0), V(-9, 4.3, 0)),  # 8
    Part.ArcOfCircle(Part.Circle(V(0, 0, 0), V(0, 0, 1), 10), math.radians(154.44), math.radians(162.7)),  # 9
    Part.LineSegment(V(-9.5, 3, 0), V(-8.1, 2.5, 0)),  # 10
    Part.ArcOfCircle(Part.Circle(V(0, 0, 0), V(0, 0, 1), 8.5), math.radians(154.44), math.radians(162.7)),  # 11
    Part.LineSegment(V(-4.8, 7, 0), V(-5.7, 8.2, 0)),  # 12
    Part.ArcOfCircle(Part.Circle(V(0, 0, 0), V(0, 0, 1), 10), math.radians(124.44), math.radians(132.7)),  # 13
    Part.LineSegment(V(-6.8, 7.3, 0), V(-5.8, 6.2, 0)),  # 14
    Part.ArcOfCircle(Part.Circle(V(0, 0, 0), V(0, 0, 1), 8.5), math.radians(124.44), math.radians(132.7)),  # 15
    Part.LineSegment(V(-0.7, 8.5, 0), V(-0.8, 10, 0)),  # 16
    Part.ArcOfCircle(Part.Circle(V(0, 0, 0), V(0, 0, 1), 10), math.radians(94.44), math.radians(102.7)),  # 17
    Part.LineSegment(V(-2.2, 9.8, 0), V(-1.9, 8.3, 0)),  # 18
    Part.ArcOfCircle(Part.Circle(V(0, 0, 0), V(0, 0, 1), 8.5), math.radians(94.44), math.radians(102.7)),  # 19
    Part.LineSegment(V(3.7, 7.7, 0), V(4.3, 9, 0)),  # 20
    Part.ArcOfCircle(Part.Circle(V(0, 0, 0), V(0, 0, 1), 10), math.radians(64.44), math.radians(72.7)),  # 21
    Part.LineSegment(V(3, 9.5, 0), V(2.5, 8.1, 0)),  # 22
    Part.ArcOfCircle(Part.Circle(V(0, 0, 0), V(0, 0, 1), 8.5), math.radians(64.44), math.radians(72.7)),  # 23
    Part.LineSegment(V(7.3, 6.8, 0), V(6.2, 5.8, 0)),  # 24
    Part.ArcOfCircle(Part.Circle(V(0, 0, 0), V(0, 0, 1), 8.5), math.radians(34.44), math.radians(42.7)),  # 25
    Part.LineSegment(V(7, 4.8, 0), V(8.2, 5.7, 0)),  # 26
    Part.ArcOfCircle(Part.Circle(V(0, 0, 0), V(0, 0, 1), 10), math.radians(34.44), math.radians(42.7)),  # 27
    Part.ArcOfCircle(Part.Circle(V(0, 0, 0), V(0, 0, 1), 10), math.radians(4.44), math.radians(12.7)),  # 28
    Part.LineSegment(V(9.8, 2.2, 0), V(8.3, 1.9, 0)),  # 29
    Part.ArcOfCircle(Part.Circle(V(0, 0, 0), V(0, 0, 1), 8.5), math.radians(4.44), math.radians(12.7)),  # 30
    Part.LineSegment(V(8.5, 0.7, 0), V(10, 0.8, 0)),  # 31
    Part.ArcOfCircle(Part.Circle(V(0, 0, 0), V(0, 0, 1), 10), math.radians(-25.56), math.radians(-17.3)),  # 32
    Part.LineSegment(V(9.5, -3, 0), V(8.1, -2.5, 0)),  # 33
    Part.ArcOfCircle(Part.Circle(V(0, 0, 0), V(0, 0, 1), 8.5), math.radians(-25.56), math.radians(-17.3)),  # 34
    Part.LineSegment(V(7.7, -3.7, 0), V(9, -4.3, 0)),  # 35
    Part.ArcOfCircle(Part.Circle(V(0, 0, 0), V(0, 0, 1), 10), math.radians(-55.56), math.radians(-47.3)),  # 36
    Part.LineSegment(V(6.8, -7.3, 0), V(5.8, -6.2, 0)),  # 37
    Part.ArcOfCircle(Part.Circle(V(0, 0, 0), V(0, 0, 1), 8.5), math.radians(-55.56), math.radians(-47.3)),  # 38
    Part.LineSegment(V(4.8, -7, 0), V(5.7, -8.2, 0)),  # 39
    Part.ArcOfCircle(Part.Circle(V(0, 0, 0), V(0, 0, 1), 10), math.radians(-85.56), math.radians(-77.3)),  # 40
    Part.LineSegment(V(2.2, -9.8, 0), V(1.9, -8.3, 0)),  # 41
    Part.ArcOfCircle(Part.Circle(V(0, 0, 0), V(0, 0, 1), 8.5), math.radians(-85.56), math.radians(-77.3)),  # 42
    Part.LineSegment(V(0.7, -8.5, 0), V(0.8, -10, 0)),  # 43
    Part.ArcOfCircle(Part.Circle(V(0, 0, 0), V(0, 0, 1), 10), math.radians(-115.56), math.radians(-107.3)),  # 44
    Part.LineSegment(V(-3, -9.5, 0), V(-2.5, -8.1, 0)),  # 45
    Part.ArcOfCircle(Part.Circle(V(0, 0, 0), V(0, 0, 1), 8.5), math.radians(-115.56), math.radians(-107.3)),  # 46
    Part.LineSegment(V(-3.7, -7.7, 0), V(-4.3, -9, 0)),  # 47
], False)
sketch3.addConstraint([
    Sketcher.Constraint("Coincident", 0, 2, 1, 1),
    Sketcher.Constraint("Coincident", 1, 2, 2, 1),
    Sketcher.Constraint("Coincident", 2, 2, 3, 2),
    Sketcher.Constraint("Coincident", 3, 1, 0, 1),
    Sketcher.Constraint("Coincident", 4, 2, 5, 1),
    Sketcher.Constraint("Coincident", 5, 2, 6, 1),
    Sketcher.Constraint("Coincident", 6, 2, 7, 2),
    Sketcher.Constraint("Coincident", 7, 1, 4, 1),
    Sketcher.Constraint("Coincident", 8, 2, 9, 1),
    Sketcher.Constraint("Coincident", 9, 2, 10, 1),
    Sketcher.Constraint("Coincident", 10, 2, 11, 2),
    Sketcher.Constraint("Coincident", 11, 1, 8, 1),
    Sketcher.Constraint("Coincident", 12, 2, 13, 1),
    Sketcher.Constraint("Coincident", 13, 2, 14, 1),
    Sketcher.Constraint("Coincident", 14, 2, 15, 2),
    Sketcher.Constraint("Coincident", 15, 1, 12, 1),
    Sketcher.Constraint("Coincident", 16, 2, 17, 1),
    Sketcher.Constraint("Coincident", 17, 2, 18, 1),
    Sketcher.Constraint("Coincident", 18, 2, 19, 2),
    Sketcher.Constraint("Coincident", 19, 1, 16, 1),
    Sketcher.Constraint("Coincident", 20, 2, 21, 1),
    Sketcher.Constraint("Coincident", 21, 2, 22, 1),
    Sketcher.Constraint("Coincident", 22, 2, 23, 2),
    Sketcher.Constraint("Coincident", 23, 1, 20, 1),
    Sketcher.Constraint("Coincident", 24, 2, 25, 2),
    Sketcher.Constraint("Coincident", 25, 1, 26, 1),
    Sketcher.Constraint("Coincident", 26, 2, 27, 1),
    Sketcher.Constraint("Coincident", 27, 2, 24, 1),
    Sketcher.Constraint("Coincident", 28, 2, 29, 1),
    Sketcher.Constraint("Coincident", 29, 2, 30, 2),
    Sketcher.Constraint("Coincident", 30, 1, 31, 1),
    Sketcher.Constraint("Coincident", 31, 2, 28, 1),
    Sketcher.Constraint("Coincident", 32, 2, 33, 1),
    Sketcher.Constraint("Coincident", 33, 2, 34, 2),
    Sketcher.Constraint("Coincident", 34, 1, 35, 1),
    Sketcher.Constraint("Coincident", 35, 2, 32, 1),
    Sketcher.Constraint("Coincident", 36, 2, 37, 1),
    Sketcher.Constraint("Coincident", 37, 2, 38, 2),
    Sketcher.Constraint("Coincident", 38, 1, 39, 1),
    Sketcher.Constraint("Coincident", 39, 2, 36, 1),
    Sketcher.Constraint("Coincident", 40, 2, 41, 1),
    Sketcher.Constraint("Coincident", 41, 2, 42, 2),
    Sketcher.Constraint("Coincident", 42, 1, 43, 1),
    Sketcher.Constraint("Coincident", 43, 2, 40, 1),
    Sketcher.Constraint("Coincident", 44, 2, 45, 1),
    Sketcher.Constraint("Coincident", 45, 2, 46, 2),
    Sketcher.Constraint("Coincident", 46, 1, 47, 1),
    Sketcher.Constraint("Coincident", 47, 2, 44, 1),
    Sketcher.Constraint("Coincident", 1, 3, -1, 1),
    Sketcher.Constraint("Coincident", 3, 3, -1, 1),
    Sketcher.Constraint("Coincident", 5, 3, -1, 1),
    Sketcher.Constraint("Coincident", 7, 3, -1, 1),
    Sketcher.Constraint("Coincident", 9, 3, -1, 1),
    Sketcher.Constraint("Coincident", 11, 3, -1, 1),
    Sketcher.Constraint("Coincident", 13, 3, -1, 1),
    Sketcher.Constraint("Coincident", 15, 3, -1, 1),
    Sketcher.Constraint("Coincident", 17, 3, -1, 1),
    Sketcher.Constraint("Coincident", 19, 3, -1, 1),
    Sketcher.Constraint("Coincident", 21, 3, -1, 1),
    Sketcher.Constraint("Coincident", 23, 3, -1, 1),
    Sketcher.Constraint("Coincident", 25, 3, -1, 1),
    Sketcher.Constraint("Coincident", 27, 3, -1, 1),
    Sketcher.Constraint("Coincident", 28, 3, -1, 1),
    Sketcher.Constraint("Coincident", 30, 3, -1, 1),
    Sketcher.Constraint("Coincident", 32, 3, -1, 1),
    Sketcher.Constraint("Coincident", 34, 3, -1, 1),
    Sketcher.Constraint("Coincident", 36, 3, -1, 1),
    Sketcher.Constraint("Coincident", 38, 3, -1, 1),
    Sketcher.Constraint("Coincident", 40, 3, -1, 1),
    Sketcher.Constraint("Coincident", 42, 3, -1, 1),
    Sketcher.Constraint("Coincident", 44, 3, -1, 1),
    Sketcher.Constraint("Coincident", 46, 3, -1, 1),
    Sketcher.Constraint("Equal", 1, 5),
    Sketcher.Constraint("Equal", 3, 7),
    Sketcher.Constraint("Equal", 5, 9),
    Sketcher.Constraint("Equal", 7, 11),
    Sketcher.Constraint("Equal", 9, 13),
    Sketcher.Constraint("Equal", 11, 15),
    Sketcher.Constraint("Equal", 13, 17),
    Sketcher.Constraint("Equal", 15, 19),
    Sketcher.Constraint("Equal", 17, 21),
    Sketcher.Constraint("Equal", 19, 23),
    Sketcher.Constraint("Equal", 23, 25),
    Sketcher.Constraint("Equal", 21, 27),
    Sketcher.Constraint("Equal", 27, 28),
    Sketcher.Constraint("Equal", 25, 30),
    Sketcher.Constraint("Equal", 28, 32),
    Sketcher.Constraint("Equal", 30, 34),
    Sketcher.Constraint("Equal", 32, 36),
    Sketcher.Constraint("Equal", 34, 38),
    Sketcher.Constraint("Equal", 36, 40),
    Sketcher.Constraint("Equal", 38, 42),
    Sketcher.Constraint("Equal", 40, 44),
    Sketcher.Constraint("Equal", 42, 46),
    Sketcher.Constraint("Perpendicular", 0, 12),
    Sketcher.Constraint("Perpendicular", 2, 14),
    Sketcher.Constraint("Perpendicular", 4, 16),
    Sketcher.Constraint("Perpendicular", 6, 18),
    Sketcher.Constraint("Perpendicular", 8, 20),
    Sketcher.Constraint("Perpendicular", 10, 22),
    Sketcher.Constraint("Perpendicular", 14, 24),
    Sketcher.Constraint("Perpendicular", 12, 26),
    Sketcher.Constraint("Perpendicular", 18, 29),
    Sketcher.Constraint("Perpendicular", 16, 31),
    Sketcher.Constraint("Perpendicular", 22, 33),
    Sketcher.Constraint("Perpendicular", 20, 35),
    Sketcher.Constraint("Perpendicular", 24, 37),
    Sketcher.Constraint("Perpendicular", 26, 39),
    Sketcher.Constraint("Perpendicular", 29, 41),
    Sketcher.Constraint("Perpendicular", 31, 43),
    Sketcher.Constraint("Perpendicular", 33, 45),
    Sketcher.Constraint("Perpendicular", 35, 47),
    Sketcher.Constraint("Radius", 1, Q("10 mm")),
    Sketcher.Constraint("Radius", 3, Q("8.5 mm")),
    Sketcher.Constraint("DistanceY", -1, 1, 9, 2, Q("2.973699 mm")),
    Sketcher.Constraint("DistanceX", -1, 1, 21, 2, Q("2.973699 mm")),
    Sketcher.Constraint("DistanceY", 32, 2, -1, 1, Q("2.973699 mm")),
    Sketcher.Constraint("DistanceX", 44, 2, -1, 1, Q("2.973699 mm")),
    Sketcher.Constraint("DistanceX", 1, 2, -1, 1, Q("7.349111 mm")),
    Sketcher.Constraint("DistanceY", 2, 2, -1, 1, Q("5.76439 mm")),
    Sketcher.Constraint("DistanceX", 7, 1, -1, 1, Q("8.474462 mm")),
    Sketcher.Constraint("DistanceX", 10, 2, -1, 1, Q("8.11548 mm")),
    Sketcher.Constraint("DistanceY", -1, 1, 13, 2, Q("7.349111 mm")),
    Sketcher.Constraint("DistanceY", -1, 1, 19, 1, Q("8.474462 mm")),
    Sketcher.Constraint("DistanceY", -1, 1, 24, 2, Q("5.76439 mm")),
    Sketcher.Constraint("DistanceX", -1, 1, 30, 1, Q("8.474462 mm")),
    Sketcher.Constraint("DistanceY", 36, 2, -1, 1, Q("7.349111 mm")),
    Sketcher.Constraint("DistanceY", 42, 1, -1, 1, Q("8.474462 mm")),
    Sketcher.Constraint("DistanceX", 0, 2, -1, 1, Q("8.246936 mm")),
    Sketcher.Constraint("DistanceX", 3, 1, -1, 1, Q("7.009896 mm")),
    Sketcher.Constraint("DistanceX", 4, 2, -1, 1, Q("9.969955 mm")),
    Sketcher.Constraint("DistanceX", 5, 2, -1, 1, Q("9.755334 mm")),
    Sketcher.Constraint("DistanceX", 6, 2, -1, 1, Q("8.292034 mm")),
    Sketcher.Constraint("DistanceX", 8, 2, -1, 1, Q("9.021532 mm")),
    Sketcher.Constraint("DistanceX", 11, 1, -1, 1, Q("7.668302 mm")),
    Sketcher.Constraint("DistanceX", 12, 2, -1, 1, Q("5.655797 mm")),
    Sketcher.Constraint("DistanceX", 17, 2, -1, 1, Q("2.198513 mm")),
    Sketcher.Constraint("DistanceX", -1, 1, 20, 2, Q("4.314157 mm")),
    Sketcher.Constraint("DistanceX", -1, 1, 25, 1, Q("7.009896 mm")),
    Sketcher.Constraint("DistanceX", -1, 1, 28, 2, Q("9.755334 mm")),
    Sketcher.Constraint("DistanceX", -1, 1, 34, 1, Q("7.668302 mm")),
    Sketcher.Constraint("DistanceX", -1, 1, 38, 1, Q("4.807428 mm")),
    Sketcher.Constraint("DistanceX", -1, 1, 40, 2, Q("2.198513 mm")),
    Sketcher.Constraint("DistanceX", 46, 1, -1, 1, Q("3.667034 mm")),
])
pad2 = doc.addObject("PartDesign::Pad", "Pad001")
body.addObject(pad2)
pad2.Profile = sketch3
pad2.Length = 2
pad2.Reversed = True

doc.recompute()
